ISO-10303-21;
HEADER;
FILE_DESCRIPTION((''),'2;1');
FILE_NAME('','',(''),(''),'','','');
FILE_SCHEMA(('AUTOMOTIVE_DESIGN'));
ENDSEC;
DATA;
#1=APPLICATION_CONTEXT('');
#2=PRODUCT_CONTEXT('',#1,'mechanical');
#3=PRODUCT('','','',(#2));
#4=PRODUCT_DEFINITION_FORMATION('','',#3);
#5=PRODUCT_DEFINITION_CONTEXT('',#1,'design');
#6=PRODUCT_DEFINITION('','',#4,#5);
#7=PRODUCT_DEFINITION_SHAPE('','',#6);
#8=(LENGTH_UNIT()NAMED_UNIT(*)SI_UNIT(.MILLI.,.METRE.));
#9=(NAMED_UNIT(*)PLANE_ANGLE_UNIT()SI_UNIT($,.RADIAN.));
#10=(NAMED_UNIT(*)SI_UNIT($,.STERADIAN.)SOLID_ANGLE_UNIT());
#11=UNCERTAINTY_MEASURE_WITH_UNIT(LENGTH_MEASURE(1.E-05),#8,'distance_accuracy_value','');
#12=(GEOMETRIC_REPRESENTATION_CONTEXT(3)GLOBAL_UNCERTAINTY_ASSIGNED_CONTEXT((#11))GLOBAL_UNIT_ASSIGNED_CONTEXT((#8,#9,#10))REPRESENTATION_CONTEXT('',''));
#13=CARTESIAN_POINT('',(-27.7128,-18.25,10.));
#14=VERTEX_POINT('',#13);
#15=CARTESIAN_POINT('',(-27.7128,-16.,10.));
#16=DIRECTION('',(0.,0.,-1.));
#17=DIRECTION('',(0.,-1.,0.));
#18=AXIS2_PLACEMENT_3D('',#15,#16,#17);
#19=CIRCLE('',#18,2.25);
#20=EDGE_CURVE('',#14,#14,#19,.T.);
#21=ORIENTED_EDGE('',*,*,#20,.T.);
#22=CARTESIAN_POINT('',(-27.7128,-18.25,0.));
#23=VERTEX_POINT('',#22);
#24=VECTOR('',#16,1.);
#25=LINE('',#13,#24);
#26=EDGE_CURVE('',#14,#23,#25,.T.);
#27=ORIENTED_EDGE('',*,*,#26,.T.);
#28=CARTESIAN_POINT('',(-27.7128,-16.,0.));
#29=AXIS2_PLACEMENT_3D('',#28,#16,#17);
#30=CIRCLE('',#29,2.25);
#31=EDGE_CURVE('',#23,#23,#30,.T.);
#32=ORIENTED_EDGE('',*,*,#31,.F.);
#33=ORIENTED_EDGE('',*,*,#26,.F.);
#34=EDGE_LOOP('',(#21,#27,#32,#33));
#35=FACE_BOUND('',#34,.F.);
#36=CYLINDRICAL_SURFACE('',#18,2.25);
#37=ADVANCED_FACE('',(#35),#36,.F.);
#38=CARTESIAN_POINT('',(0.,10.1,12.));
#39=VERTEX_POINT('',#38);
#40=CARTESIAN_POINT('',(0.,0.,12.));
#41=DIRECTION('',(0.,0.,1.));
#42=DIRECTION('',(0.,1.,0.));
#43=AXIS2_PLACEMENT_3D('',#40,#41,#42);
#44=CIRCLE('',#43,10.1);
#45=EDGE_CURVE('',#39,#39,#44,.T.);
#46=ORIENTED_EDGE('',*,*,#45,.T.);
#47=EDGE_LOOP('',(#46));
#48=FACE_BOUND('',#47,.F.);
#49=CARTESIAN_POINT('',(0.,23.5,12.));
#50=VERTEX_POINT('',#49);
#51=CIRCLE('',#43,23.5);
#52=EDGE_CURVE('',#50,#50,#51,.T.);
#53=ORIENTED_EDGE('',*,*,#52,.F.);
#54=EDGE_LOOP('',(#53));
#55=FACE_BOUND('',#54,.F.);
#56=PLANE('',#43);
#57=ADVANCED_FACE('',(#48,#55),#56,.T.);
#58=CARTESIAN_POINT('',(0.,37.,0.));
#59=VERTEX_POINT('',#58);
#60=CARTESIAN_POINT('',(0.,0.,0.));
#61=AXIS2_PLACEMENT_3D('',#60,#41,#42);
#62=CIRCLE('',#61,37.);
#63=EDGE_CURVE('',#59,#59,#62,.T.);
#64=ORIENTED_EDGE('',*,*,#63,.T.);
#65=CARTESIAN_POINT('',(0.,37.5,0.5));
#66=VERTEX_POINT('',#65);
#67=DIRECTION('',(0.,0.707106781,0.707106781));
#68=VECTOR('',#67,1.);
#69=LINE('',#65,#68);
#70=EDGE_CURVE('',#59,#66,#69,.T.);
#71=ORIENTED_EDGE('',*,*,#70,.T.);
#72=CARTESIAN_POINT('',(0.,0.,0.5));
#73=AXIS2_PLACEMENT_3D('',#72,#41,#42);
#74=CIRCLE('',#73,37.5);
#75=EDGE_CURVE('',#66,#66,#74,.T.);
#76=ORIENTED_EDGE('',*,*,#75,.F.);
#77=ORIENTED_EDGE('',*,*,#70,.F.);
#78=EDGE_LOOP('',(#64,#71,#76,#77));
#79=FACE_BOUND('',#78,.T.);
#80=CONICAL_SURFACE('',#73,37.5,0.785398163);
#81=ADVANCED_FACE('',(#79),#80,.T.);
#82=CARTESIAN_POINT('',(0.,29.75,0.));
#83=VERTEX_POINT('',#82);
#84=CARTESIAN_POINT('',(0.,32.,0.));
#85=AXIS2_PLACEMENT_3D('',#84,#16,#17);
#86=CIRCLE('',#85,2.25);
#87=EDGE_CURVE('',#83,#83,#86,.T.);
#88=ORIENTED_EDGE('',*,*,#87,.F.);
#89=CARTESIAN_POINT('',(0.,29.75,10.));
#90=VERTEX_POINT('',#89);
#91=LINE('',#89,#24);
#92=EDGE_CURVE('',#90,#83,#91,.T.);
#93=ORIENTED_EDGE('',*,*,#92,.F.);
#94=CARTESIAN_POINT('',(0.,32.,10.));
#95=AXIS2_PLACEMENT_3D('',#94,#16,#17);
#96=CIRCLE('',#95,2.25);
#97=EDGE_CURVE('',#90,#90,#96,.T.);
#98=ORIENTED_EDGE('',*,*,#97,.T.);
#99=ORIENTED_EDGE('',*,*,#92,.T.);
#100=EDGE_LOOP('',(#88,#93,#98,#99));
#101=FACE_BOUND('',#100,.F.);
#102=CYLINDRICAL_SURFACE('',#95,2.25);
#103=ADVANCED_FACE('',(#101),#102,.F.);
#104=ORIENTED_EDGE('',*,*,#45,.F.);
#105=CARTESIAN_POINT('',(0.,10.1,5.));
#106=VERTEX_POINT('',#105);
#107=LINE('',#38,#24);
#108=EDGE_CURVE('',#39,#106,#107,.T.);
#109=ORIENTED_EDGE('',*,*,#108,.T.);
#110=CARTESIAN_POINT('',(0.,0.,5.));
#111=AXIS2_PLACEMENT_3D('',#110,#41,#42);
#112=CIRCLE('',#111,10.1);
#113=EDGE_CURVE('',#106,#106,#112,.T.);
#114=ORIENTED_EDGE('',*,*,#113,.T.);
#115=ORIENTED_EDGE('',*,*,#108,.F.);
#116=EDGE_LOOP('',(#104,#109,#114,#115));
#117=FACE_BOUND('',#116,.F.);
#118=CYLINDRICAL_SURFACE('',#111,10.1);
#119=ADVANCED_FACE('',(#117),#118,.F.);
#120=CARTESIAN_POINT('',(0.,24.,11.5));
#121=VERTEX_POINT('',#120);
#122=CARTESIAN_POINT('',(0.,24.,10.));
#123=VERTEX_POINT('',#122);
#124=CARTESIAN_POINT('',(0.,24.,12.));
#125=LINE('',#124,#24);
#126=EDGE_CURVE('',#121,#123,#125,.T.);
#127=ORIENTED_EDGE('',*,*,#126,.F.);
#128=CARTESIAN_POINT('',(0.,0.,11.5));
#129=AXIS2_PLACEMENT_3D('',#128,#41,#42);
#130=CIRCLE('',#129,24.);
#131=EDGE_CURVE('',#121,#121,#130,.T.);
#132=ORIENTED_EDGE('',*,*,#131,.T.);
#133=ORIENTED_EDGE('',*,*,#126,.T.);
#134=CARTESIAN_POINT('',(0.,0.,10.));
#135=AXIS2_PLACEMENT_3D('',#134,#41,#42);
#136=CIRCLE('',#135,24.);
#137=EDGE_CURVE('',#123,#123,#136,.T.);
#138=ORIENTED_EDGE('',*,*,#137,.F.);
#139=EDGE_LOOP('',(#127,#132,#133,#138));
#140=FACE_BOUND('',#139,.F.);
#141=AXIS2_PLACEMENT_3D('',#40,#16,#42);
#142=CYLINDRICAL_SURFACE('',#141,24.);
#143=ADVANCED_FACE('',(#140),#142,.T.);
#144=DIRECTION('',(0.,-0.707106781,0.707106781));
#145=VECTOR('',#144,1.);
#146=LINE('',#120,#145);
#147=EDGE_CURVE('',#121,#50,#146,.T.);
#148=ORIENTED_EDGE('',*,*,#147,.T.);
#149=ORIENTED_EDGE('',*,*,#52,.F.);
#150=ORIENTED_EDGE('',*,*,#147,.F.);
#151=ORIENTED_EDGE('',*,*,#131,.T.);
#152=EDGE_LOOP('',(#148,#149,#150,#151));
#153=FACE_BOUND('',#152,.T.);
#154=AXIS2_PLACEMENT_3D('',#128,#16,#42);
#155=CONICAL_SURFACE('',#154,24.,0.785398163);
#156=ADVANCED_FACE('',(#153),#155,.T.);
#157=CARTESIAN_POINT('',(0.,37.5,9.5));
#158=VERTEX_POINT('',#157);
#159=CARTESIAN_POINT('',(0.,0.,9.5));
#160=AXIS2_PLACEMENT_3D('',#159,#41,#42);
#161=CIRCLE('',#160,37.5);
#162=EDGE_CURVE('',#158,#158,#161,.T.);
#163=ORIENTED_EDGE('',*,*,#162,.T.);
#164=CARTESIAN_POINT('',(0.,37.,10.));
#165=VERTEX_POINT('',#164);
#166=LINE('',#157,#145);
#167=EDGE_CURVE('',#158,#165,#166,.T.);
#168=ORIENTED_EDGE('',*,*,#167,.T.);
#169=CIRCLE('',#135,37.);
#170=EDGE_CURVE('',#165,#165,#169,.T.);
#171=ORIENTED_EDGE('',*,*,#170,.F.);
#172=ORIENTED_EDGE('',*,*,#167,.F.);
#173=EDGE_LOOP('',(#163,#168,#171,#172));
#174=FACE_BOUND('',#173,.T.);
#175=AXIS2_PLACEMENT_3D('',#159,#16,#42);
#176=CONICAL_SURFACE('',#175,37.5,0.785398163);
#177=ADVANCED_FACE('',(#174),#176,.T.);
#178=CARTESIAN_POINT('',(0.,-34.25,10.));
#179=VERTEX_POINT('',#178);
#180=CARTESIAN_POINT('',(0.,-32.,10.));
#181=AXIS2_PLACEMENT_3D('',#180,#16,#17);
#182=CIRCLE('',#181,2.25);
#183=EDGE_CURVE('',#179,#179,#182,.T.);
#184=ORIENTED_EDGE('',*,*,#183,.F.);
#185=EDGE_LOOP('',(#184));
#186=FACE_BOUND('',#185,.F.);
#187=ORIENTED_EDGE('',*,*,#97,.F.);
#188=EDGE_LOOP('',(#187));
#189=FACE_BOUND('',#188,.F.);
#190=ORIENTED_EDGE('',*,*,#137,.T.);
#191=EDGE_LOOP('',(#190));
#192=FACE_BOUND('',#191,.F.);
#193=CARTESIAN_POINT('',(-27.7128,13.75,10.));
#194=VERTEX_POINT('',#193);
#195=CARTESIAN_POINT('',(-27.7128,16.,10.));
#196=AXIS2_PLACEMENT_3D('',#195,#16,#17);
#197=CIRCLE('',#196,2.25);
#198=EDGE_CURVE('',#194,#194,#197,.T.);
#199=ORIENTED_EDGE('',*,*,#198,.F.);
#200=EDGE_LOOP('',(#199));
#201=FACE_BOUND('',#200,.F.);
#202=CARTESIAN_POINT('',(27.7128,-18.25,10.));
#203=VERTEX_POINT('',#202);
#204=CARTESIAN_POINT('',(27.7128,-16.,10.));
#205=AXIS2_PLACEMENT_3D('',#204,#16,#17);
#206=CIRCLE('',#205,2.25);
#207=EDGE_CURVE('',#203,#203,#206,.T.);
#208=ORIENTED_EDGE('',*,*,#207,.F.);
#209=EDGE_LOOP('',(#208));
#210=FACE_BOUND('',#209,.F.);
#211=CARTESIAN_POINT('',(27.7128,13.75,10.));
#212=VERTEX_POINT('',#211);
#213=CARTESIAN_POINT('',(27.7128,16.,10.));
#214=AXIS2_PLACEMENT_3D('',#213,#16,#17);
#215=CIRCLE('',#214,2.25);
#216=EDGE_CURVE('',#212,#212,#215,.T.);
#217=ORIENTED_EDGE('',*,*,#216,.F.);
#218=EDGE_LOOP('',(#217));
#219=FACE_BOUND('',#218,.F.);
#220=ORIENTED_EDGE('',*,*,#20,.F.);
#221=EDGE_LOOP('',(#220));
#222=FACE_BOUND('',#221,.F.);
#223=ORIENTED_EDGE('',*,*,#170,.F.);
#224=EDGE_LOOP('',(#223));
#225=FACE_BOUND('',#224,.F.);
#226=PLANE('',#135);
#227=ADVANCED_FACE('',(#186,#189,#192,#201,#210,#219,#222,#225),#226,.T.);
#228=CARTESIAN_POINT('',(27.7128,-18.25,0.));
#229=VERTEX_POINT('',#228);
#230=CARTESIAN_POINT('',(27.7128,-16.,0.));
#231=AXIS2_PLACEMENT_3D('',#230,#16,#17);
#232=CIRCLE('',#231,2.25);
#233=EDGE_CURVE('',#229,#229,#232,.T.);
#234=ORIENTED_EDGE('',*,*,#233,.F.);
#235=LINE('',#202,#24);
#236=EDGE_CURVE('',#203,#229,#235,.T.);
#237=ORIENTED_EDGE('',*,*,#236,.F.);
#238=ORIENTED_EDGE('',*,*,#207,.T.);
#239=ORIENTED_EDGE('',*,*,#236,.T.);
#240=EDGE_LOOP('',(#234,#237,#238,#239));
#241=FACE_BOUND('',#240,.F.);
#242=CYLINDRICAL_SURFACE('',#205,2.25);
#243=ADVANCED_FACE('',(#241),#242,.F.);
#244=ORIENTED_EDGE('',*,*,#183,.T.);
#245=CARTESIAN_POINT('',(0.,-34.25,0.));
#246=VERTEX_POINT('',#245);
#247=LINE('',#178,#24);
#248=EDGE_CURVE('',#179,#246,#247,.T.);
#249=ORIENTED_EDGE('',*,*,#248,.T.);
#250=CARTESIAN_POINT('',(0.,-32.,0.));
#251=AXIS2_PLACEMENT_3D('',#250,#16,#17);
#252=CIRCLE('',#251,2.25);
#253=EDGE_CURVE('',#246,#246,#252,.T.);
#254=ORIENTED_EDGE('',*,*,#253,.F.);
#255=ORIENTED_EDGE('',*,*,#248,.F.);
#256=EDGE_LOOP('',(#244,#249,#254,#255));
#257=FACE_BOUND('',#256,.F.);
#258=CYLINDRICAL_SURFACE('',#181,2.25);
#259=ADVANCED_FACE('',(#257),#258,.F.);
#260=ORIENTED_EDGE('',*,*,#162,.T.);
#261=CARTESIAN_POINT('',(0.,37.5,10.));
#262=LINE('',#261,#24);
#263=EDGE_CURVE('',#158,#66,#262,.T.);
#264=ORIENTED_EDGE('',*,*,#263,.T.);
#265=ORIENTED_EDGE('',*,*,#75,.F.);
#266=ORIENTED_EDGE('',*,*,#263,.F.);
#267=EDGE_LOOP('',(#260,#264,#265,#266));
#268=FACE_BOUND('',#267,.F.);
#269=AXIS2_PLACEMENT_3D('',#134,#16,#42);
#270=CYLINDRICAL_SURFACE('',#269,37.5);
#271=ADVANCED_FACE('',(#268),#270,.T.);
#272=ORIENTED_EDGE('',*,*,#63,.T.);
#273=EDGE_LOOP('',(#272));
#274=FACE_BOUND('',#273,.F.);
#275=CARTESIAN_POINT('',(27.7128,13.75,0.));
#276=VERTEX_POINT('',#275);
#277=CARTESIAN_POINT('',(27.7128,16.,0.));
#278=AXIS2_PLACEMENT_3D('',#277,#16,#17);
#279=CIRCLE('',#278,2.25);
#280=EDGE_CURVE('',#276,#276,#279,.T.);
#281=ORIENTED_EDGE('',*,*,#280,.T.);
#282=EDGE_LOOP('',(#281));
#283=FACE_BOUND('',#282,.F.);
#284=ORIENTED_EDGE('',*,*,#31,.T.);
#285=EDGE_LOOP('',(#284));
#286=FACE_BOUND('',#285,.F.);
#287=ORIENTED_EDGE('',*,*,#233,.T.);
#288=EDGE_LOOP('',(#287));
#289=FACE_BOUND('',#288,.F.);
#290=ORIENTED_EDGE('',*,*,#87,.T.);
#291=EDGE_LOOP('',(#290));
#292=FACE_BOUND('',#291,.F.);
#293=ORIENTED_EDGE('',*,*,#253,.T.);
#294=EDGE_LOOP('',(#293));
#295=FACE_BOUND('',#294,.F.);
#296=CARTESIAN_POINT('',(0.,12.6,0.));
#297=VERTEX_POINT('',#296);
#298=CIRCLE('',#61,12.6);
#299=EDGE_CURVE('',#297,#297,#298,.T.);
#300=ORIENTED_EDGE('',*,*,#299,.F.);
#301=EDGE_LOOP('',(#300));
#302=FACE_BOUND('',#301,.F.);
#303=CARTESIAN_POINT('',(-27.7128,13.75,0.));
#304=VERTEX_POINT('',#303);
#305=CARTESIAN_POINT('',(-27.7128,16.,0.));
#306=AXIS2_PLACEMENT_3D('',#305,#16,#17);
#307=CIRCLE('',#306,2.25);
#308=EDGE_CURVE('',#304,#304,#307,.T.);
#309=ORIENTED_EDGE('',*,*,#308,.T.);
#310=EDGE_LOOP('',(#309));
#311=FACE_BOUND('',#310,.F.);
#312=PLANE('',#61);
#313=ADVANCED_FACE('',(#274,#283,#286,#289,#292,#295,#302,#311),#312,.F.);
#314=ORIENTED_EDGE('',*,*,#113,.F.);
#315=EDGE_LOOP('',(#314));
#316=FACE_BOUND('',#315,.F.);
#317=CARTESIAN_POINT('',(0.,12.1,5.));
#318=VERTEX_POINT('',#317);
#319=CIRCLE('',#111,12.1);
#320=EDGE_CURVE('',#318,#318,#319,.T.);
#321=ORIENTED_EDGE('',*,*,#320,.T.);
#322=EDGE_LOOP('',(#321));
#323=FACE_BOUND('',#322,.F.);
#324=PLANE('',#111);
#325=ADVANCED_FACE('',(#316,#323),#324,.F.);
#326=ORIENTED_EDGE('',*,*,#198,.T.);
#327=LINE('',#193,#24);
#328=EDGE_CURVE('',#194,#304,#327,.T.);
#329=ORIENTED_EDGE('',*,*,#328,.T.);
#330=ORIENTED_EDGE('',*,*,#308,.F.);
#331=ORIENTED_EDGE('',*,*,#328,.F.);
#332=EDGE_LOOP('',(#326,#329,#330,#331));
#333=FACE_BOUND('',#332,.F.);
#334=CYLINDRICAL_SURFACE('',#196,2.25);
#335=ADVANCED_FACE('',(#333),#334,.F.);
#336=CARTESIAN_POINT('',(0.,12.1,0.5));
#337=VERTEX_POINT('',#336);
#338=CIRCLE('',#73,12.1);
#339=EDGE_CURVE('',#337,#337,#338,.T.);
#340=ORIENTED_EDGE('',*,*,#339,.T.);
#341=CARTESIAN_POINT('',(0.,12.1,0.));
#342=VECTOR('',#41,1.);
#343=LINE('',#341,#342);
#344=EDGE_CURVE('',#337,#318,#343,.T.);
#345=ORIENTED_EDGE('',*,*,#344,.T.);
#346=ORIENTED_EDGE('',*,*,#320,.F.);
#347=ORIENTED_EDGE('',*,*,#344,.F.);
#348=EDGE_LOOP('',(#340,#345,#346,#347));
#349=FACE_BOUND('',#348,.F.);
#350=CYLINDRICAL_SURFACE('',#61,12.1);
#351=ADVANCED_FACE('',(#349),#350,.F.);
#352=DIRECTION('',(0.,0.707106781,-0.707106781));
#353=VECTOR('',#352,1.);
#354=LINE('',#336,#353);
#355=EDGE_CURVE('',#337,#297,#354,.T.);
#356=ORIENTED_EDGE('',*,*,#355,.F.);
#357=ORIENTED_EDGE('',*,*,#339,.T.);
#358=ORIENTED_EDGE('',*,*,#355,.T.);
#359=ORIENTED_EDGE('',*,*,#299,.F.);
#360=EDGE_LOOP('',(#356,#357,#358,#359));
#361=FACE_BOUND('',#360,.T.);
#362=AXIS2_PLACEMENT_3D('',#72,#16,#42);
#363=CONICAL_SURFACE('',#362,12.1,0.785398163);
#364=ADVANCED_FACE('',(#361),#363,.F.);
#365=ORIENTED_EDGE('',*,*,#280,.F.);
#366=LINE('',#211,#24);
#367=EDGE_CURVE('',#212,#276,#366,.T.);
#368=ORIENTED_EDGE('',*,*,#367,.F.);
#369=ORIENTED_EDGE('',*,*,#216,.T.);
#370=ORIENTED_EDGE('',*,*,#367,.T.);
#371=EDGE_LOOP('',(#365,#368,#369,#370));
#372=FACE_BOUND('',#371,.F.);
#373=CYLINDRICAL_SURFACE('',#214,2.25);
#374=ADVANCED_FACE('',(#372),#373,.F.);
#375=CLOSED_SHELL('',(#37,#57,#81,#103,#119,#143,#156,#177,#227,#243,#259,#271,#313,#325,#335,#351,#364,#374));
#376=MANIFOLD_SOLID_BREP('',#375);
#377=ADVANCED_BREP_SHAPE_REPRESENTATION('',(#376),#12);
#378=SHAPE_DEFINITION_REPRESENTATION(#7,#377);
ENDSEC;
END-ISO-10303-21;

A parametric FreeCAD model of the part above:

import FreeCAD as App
import Part
import Sketcher
from FreeCAD import Vector


def edges_at(feature, points):
    """Names of the edges that pass closest to the given points."""
    edges = feature.Shape.Edges
    near = lambda p: min(range(len(edges)), key=lambda i: edges[i].distToShape(Part.Vertex(*p))[0])
    return sorted({f"Edge{near(p) + 1}" for p in points})


def add_polygon(sketch, points):
    """Adds a closed chain of lines whose ends are joined by coincident constraints."""
    first, n = sketch.GeometryCount, len(points)
    for a, b in zip(points, points[1:] + points[:1]):
        sketch.addGeometry(Part.LineSegment(App.Vector(*a, 0), App.Vector(*b, 0)), False)
    for i in range(n):
        sketch.addConstraint(Sketcher.Constraint("Coincident", first + i, 2, first + (i + 1) % n, 1))

doc = App.newDocument("Part")
body = doc.addObject("PartDesign::Body", "Body")

# Sketch on YZ plane
sketch1 = body.newObject("Sketcher::SketchObject", "Sketch")
sketch1.AttachmentSupport = (doc.getObject("YZ_Plane"), [""])
sketch1.MapMode = "FlatFace"
add_polygon(sketch1, [(12.1, 5), (12.1, 0), (37.5, 0), (37.5, 10), (24, 10), (24, 12), (10.1, 12), (10.1, 5)])  # lines 0-7
sketch1.addConstraint([
    Sketcher.Constraint("Vertical", 0),
    Sketcher.Constraint("Horizontal", 1),
    Sketcher.Constraint("Vertical", 2),
    Sketcher.Constraint("Horizontal", 3),
    Sketcher.Constraint("Vertical", 4),
    Sketcher.Constraint("Horizontal", 5),
    Sketcher.Constraint("Vertical", 6),
    Sketcher.Constraint("Horizontal", 7),
    Sketcher.Constraint("PointOnObject", 0, 2, -1),
    Sketcher.Constraint("Equal", 7, 4),
    Sketcher.Constraint("DistanceX", 7, 1, 7, 2, 2.0),
    Sketcher.Constraint("DistanceY", 0, 2, 0, 1, 5.0),
    Sketcher.Constraint("DistanceY", 2, 1, 2, 2, 10.0),
    Sketcher.Constraint("DistanceX", -1, 1, 3, 2, 24.0),
    Sketcher.Constraint("DistanceX", -1, 1, 0, 2, 12.1),
    Sketcher.Constraint("DistanceX", -1, 1, 1, 2, 37.5),
])
revolution = body.newObject("PartDesign::Revolution", "Revolution")
revolution.Profile = sketch1
revolution.ReferenceAxis = (sketch1, ["V_Axis"])
revolution.Angle = 360
doc.recompute()

chamfer = body.newObject("PartDesign::Chamfer", "Chamfer")
chamfer.Base = (revolution, edges_at(revolution, [(0, -12.1, 0)]))
chamfer.Size = 0.5

# Sketch on XY plane
sketch2 = body.newObject("Sketcher::SketchObject", "Sketch001")
sketch2.AttachmentSupport = (doc.getObject("XY_Plane"), [""])
sketch2.MapMode = "FlatFace"
sketch2.AttachmentOffset = App.Placement(Vector(0, 0, 10), App.Rotation())
sketch2.addGeometry([
    Part.Circle(Vector(0, 32, 0), Vector(0, 0, 1), 2.2),  # 0
    Part.Circle(Vector(-27.7, 16, 0), Vector(0, 0, 1), 2.2),  # 1
    Part.Circle(Vector(-27.7, -16, 0), Vector(0, 0, 1), 2.2),  # 2
    Part.Circle(Vector(0, -32, 0), Vector(0, 0, 1), 2.2),  # 3
    Part.Circle(Vector(27.7, -16, 0), Vector(0, 0, 1), 2.2),  # 4
    Part.Circle(Vector(27.7, 16, 0), Vector(0, 0, 1), 2.2),  # 5
], False)
sketch2.addConstraint([
    Sketcher.Constraint("Equal", 0, 1),
    Sketcher.Constraint("Equal", 1, 2),
    Sketcher.Constraint("Equal", 2, 3),
    Sketcher.Constraint("Equal", 3, 4),
    Sketcher.Constraint("Equal", 4, 5),
    Sketcher.Constraint("Symmetric", 0, 3, 3, 3, -1, 1),
    Sketcher.Constraint("Symmetric", 1, 3, 4, 3, -1, 1),
    Sketcher.Constraint("Symmetric", 2, 3, 5, 3, -1, 1),
    Sketcher.Constraint("Symmetric", 2, 3, 4, 3, -2),
    Sketcher.Constraint("PointOnObject", 0, 3, -2),
    Sketcher.Constraint("Diameter", 0, 4.5),
    Sketcher.Constraint("DistanceY", -1, 1, 0, 3, 32.0),
    Sketcher.Constraint("DistanceY", -1, 1, 1, 3, 16.0),
    Sketcher.Constraint("DistanceX", 1, 3, -1, 1, 27.7128),
])
doc.recompute()
hole = body.newObject("PartDesign::Hole", "Hole")
hole.Profile = sketch2
hole.ThreadType = "None"
hole.Diameter = 4.5
hole.DepthType = "ThroughAll"
doc.recompute()

chamfer2 = body.newObject("PartDesign::Chamfer", "Chamfer001")
chamfer2.Base = (hole, edges_at(hole, [(0, -37.5, 0), (0, -37.5, 10)]))
chamfer2.Size = 0.5
doc.recompute()

chamfer3 = body.newObject("PartDesign::Chamfer", "Chamfer002")
chamfer3.Base = (chamfer2, edges_at(chamfer2, [(0, -24, 12)]))
chamfer3.Size = 0.5

doc.recompute()
